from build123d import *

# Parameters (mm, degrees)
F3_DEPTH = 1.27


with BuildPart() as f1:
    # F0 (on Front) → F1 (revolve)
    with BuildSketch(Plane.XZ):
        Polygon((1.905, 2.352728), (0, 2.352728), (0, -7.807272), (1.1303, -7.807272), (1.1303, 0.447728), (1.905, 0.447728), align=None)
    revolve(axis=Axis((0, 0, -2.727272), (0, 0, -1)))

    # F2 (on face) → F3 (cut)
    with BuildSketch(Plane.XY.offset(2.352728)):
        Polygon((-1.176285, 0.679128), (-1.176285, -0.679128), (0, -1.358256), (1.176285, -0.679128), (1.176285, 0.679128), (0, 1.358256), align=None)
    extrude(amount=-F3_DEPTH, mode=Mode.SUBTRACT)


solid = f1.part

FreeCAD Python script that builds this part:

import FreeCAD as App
import Part
import Sketcher

V = App.Vector
Q = App.Units.Quantity


def add_polygon(sketch, points):
    """Adds a closed chain of lines whose ends are joined by coincident constraints."""
    first, n = sketch.GeometryCount, len(points)
    for a, b in zip(points, points[1:] + points[:1]):
        sketch.addGeometry(Part.LineSegment(App.Vector(*a, 0), App.Vector(*b, 0)), False)
    for i in range(n):
        sketch.addConstraint(Sketcher.Constraint("Coincident", first + i, 2, first + (i + 1) % n, 1))

doc = App.newDocument("Part")
body = doc.addObject("PartDesign::Body", "Body")

sketch1 = doc.addObject("Sketcher::SketchObject", "Sketch")
body.addObject(sketch1)
sketch1.AttachmentSupport = (doc.XZ_Plane, [""])
sketch1.MapMode = "FlatFace"
add_polygon(sketch1, [(1.9, 2.4), (0, 2.4), (0, -7.8), (1.1, -7.8), (1.1, 0.4), (1.9, 0.4)])
sketch1.addConstraint([
    Sketcher.Constraint("Horizontal", 0),
    Sketcher.Constraint("Vertical", 1),
    Sketcher.Constraint("Horizontal", 2),
    Sketcher.Constraint("Vertical", 3),
    Sketcher.Constraint("Horizontal", 4),
    Sketcher.Constraint("Vertical", 5),
    Sketcher.Constraint("PointOnObject", 0, 2, -2),
    Sketcher.Constraint("Equal", 0, 5),
    Sketcher.Constraint("DistanceY", 1, 2, 1, 1, Q("0.4 in")),
    Sketcher.Constraint("DistanceX", 0, 2, 0, 1, Q("0.075 in")),
    Sketcher.Constraint("DistanceX", 2, 1, 2, 2, Q("0.0445 in")),
    Sketcher.Constraint("DistanceY", -1, 1, 0, 2, Q("2.352728 mm")),
])
revolution = doc.addObject("PartDesign::Revolution", "Revolution")
body.addObject(revolution)
revolution.Profile = sketch1
revolution.ReferenceAxis = (sketch1, ["V_Axis"])
revolution.Angle = 360

sketch2 = doc.addObject("Sketcher::SketchObject", "Sketch001")
body.addObject(sketch2)
sketch2.AttachmentSupport = (doc.XY_Plane, [""])
sketch2.MapMode = "FlatFace"
sketch2.AttachmentOffset = App.Placement(V(0, 0, 2.352728), App.Rotation())
add_polygon(sketch2, [(-1.2, 0.7), (-1.2, -0.7), (0, -1.4), (1.2, -0.7), (1.2, 0.7), (0, 1.4)])
sketch2.addConstraint([
    Sketcher.Constraint("Vertical", 0),
    Sketcher.Constraint("Vertical", 3),
    Sketcher.Constraint("Symmetric", 0, 2, 3, 2, -1, 1),
    Sketcher.Constraint("Symmetric", 1, 2, 4, 2, -1, 1),
    Sketcher.Constraint("PointOnObject", 1, 2, -2),
    Sketcher.Constraint("Parallel", 2, 5),
    Sketcher.Constraint("Horizontal", 0, 2, 2, 2),
    Sketcher.Constraint("Angle", 1, Q("-29.999983 deg")),
    Sketcher.Constraint("DistanceY", 0, 2, 0, 1, Q("1.358256 mm")),
    Sketcher.Constraint("DistanceX", 0, 2, 2, 2, Q("2.35257 mm")),
])
pocket1 = doc.addObject("PartDesign::Pocket", "Pocket")
body.addObject(pocket1)
pocket1.Profile = sketch2
pocket1.Length = Q("0.05 in")

doc.recompute()
